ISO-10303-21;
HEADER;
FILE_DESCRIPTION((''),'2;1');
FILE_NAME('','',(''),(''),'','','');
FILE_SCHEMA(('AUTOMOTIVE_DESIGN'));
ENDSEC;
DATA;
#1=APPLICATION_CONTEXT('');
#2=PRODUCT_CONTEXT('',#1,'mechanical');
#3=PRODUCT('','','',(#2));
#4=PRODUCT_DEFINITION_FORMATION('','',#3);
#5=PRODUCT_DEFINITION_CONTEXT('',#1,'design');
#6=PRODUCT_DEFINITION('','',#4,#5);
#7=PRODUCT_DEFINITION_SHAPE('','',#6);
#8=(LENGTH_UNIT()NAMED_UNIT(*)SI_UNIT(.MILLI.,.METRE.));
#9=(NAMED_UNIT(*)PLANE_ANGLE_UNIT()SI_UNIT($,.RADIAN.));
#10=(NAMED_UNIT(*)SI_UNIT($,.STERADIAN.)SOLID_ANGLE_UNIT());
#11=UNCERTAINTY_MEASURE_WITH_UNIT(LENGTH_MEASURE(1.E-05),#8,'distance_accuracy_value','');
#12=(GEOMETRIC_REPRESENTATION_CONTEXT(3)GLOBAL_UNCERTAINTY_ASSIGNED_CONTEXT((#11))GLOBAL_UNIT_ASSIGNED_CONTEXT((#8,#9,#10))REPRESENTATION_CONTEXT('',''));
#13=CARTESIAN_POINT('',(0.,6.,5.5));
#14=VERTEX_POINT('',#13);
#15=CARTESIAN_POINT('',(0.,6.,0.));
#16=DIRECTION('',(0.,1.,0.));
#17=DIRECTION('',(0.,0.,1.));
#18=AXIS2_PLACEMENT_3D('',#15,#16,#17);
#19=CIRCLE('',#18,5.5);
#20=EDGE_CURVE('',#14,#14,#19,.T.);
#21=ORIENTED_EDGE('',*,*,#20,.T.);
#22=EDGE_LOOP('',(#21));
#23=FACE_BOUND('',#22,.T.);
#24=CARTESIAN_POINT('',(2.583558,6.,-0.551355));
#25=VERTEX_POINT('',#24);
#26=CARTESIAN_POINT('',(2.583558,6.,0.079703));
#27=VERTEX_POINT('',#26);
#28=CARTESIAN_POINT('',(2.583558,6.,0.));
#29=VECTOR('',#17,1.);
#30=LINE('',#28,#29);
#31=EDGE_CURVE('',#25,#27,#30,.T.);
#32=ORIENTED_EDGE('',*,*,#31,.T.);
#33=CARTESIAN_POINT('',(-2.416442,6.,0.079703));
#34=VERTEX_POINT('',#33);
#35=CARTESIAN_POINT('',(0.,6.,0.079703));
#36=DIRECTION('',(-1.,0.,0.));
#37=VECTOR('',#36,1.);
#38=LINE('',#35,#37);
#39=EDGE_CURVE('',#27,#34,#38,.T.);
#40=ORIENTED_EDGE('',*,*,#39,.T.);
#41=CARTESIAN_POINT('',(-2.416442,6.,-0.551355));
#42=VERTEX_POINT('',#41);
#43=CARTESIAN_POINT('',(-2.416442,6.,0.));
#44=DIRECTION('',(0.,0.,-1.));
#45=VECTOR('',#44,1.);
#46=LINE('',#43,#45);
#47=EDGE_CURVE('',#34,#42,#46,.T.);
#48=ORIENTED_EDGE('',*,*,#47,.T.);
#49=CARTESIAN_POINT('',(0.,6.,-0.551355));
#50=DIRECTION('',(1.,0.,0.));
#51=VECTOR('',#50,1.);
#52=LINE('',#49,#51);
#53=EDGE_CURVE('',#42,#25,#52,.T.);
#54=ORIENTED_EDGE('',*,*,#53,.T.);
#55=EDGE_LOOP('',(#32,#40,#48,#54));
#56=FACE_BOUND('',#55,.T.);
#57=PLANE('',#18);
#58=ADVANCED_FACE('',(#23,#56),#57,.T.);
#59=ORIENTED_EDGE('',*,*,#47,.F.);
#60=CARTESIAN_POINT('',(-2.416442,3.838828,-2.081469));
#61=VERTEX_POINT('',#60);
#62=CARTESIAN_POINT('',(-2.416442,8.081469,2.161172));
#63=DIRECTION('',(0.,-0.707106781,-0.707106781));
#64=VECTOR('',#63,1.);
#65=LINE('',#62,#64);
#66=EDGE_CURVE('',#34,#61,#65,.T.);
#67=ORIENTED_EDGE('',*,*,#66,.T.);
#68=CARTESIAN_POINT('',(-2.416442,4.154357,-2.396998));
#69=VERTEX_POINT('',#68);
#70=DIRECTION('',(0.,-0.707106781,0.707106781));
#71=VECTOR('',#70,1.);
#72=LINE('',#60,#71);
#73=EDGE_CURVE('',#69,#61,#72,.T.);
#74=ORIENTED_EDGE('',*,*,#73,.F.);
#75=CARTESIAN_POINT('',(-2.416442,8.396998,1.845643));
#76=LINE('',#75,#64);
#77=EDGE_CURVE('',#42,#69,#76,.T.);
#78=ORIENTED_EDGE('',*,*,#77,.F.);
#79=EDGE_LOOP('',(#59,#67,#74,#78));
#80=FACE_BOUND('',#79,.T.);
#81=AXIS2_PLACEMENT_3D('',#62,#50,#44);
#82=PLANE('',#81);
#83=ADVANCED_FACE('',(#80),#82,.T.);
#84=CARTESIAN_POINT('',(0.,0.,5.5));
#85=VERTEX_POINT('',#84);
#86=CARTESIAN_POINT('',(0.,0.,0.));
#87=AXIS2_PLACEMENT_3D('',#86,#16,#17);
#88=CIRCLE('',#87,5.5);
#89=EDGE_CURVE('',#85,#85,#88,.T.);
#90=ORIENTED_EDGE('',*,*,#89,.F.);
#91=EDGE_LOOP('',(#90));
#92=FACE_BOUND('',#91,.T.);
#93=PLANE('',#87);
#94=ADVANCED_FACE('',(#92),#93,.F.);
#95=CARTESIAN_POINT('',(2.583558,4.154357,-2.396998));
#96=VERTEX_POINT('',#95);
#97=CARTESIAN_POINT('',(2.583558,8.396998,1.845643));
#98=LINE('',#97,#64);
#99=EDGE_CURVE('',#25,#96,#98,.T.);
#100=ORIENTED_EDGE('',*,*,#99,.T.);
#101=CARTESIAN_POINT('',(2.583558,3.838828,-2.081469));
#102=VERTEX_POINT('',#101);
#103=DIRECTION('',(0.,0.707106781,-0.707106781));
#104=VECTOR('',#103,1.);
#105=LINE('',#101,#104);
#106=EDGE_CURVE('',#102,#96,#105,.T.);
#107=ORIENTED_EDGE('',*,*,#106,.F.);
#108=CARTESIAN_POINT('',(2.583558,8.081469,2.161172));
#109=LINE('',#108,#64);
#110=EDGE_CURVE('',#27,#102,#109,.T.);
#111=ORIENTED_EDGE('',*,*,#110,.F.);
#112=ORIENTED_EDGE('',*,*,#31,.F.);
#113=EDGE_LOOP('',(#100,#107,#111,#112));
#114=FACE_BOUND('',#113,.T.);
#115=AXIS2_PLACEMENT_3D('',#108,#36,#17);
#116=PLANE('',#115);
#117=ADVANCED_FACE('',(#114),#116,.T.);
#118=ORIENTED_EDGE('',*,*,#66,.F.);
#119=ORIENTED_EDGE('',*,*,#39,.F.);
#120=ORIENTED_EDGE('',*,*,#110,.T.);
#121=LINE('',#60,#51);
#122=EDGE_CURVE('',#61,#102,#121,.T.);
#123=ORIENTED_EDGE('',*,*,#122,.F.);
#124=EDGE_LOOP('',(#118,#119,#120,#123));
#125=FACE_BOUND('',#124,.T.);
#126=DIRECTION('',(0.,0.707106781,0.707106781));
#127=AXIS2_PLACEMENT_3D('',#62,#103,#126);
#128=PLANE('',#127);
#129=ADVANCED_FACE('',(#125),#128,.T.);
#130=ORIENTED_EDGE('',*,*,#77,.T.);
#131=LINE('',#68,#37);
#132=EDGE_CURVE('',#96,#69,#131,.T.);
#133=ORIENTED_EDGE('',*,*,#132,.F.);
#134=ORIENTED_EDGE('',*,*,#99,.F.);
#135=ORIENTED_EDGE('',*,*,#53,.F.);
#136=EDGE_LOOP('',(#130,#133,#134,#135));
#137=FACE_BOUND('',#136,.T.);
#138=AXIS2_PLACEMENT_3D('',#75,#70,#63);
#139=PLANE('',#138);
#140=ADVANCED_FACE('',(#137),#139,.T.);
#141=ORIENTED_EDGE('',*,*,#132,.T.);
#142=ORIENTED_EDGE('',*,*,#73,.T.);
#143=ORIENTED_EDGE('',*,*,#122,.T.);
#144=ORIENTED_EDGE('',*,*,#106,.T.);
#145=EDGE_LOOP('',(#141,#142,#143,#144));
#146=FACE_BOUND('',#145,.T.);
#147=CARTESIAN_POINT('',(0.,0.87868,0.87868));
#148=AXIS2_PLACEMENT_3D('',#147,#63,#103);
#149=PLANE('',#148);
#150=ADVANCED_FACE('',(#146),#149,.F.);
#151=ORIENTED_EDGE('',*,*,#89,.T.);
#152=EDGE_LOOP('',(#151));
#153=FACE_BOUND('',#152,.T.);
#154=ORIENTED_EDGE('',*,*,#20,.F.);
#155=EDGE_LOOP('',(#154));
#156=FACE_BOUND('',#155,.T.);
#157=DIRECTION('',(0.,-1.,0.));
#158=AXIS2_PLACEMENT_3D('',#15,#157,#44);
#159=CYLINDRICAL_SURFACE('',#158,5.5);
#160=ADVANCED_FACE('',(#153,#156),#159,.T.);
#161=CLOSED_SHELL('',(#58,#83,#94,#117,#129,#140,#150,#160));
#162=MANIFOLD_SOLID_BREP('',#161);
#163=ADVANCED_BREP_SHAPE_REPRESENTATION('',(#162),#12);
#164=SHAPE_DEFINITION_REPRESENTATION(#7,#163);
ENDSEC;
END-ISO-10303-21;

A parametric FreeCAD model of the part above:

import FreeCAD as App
import Part
import Sketcher
from FreeCAD import Vector


def add_polygon(sketch, points):
    """Adds a closed chain of lines whose ends are joined by coincident constraints."""
    first, n = sketch.GeometryCount, len(points)
    for a, b in zip(points, points[1:] + points[:1]):
        sketch.addGeometry(Part.LineSegment(App.Vector(*a, 0), App.Vector(*b, 0)), False)
    for i in range(n):
        sketch.addConstraint(Sketcher.Constraint("Coincident", first + i, 2, first + (i + 1) % n, 1))

doc = App.newDocument("Part")
params = doc.addObject("Spreadsheet::Sheet", "Params")
for row, (alias, value) in enumerate([
    ("sketch1_diameter", "11 mm"),
    ("pad1_length", "6 mm"),
    ("sketch2_width", "5 mm"),
    ("pocket1_length", "3 mm"),
    ("pocket1_length2", "3 mm"),
], start=1):
    params.set(f"A{row}", alias)
    params.set(f"B{row}", "=" + value)
    params.setAlias(f"B{row}", alias)

body = doc.addObject("PartDesign::Body", "Body")

# Sketch on XZ plane
sketch1 = body.newObject("Sketcher::SketchObject", "Sketch")
sketch1.AttachmentSupport = (doc.getObject("XZ_Plane"), [""])
sketch1.MapMode = "FlatFace"
sketch1.addGeometry(Part.Circle(Vector(0, 0, 0), Vector(0, 0, 1), 6), False)
sketch1.addConstraint(Sketcher.Constraint("Coincident", 0, 3, -1, 1))
sketch1.addConstraint(Sketcher.Constraint("Diameter", 0, 11.0))
sketch1.setExpression("Constraints[1]", "Params.sketch1_diameter")
pad1 = body.newObject("PartDesign::Pad", "Pad")
pad1.Profile = sketch1
pad1.setExpression("Length", "Params.pad1_length")
pad1.Reversed = True

# Sketch on an angled plane
sketch2 = body.newObject("Sketcher::SketchObject", "Sketch001")
sketch2.Placement = App.Placement(Vector(0, 3, 3), App.Rotation(Vector(1, 0, 0), Vector(0, 0.707106781, -0.707106781), Vector(0, 0.707106781, 0.707106781), "ZXY"))
add_polygon(sketch2, [(-2.42, 4.63), (-2.42, 4.19), (2.58, 4.19), (2.58, 4.63)])  # lines 0-3
sketch2.addConstraint(Sketcher.Constraint("Vertical", 0))
sketch2.addConstraint(Sketcher.Constraint("Horizontal", 1))
sketch2.addConstraint(Sketcher.Constraint("Vertical", 2))
sketch2.addConstraint(Sketcher.Constraint("Horizontal", 3))
sketch2.addConstraint(Sketcher.Constraint("DistanceX", 1, 1, 1, 2, 5.0))
sketch2.addConstraint(Sketcher.Constraint("DistanceY", 0, 2, 0, 1, 0.446225))
sketch2.addConstraint(Sketcher.Constraint("DistanceX", 0, 2, -1, 1, 2.416442))
sketch2.addConstraint(Sketcher.Constraint("DistanceY", -1, 1, 0, 2, 4.186282))
sketch2.setExpression("Constraints[8]", "Params.sketch2_width")
pocket1 = body.newObject("PartDesign::Pocket", "Pocket")
pocket1.Profile = sketch2
pocket1.Type = "TwoLengths"
pocket1.setExpression("Length", "Params.pocket1_length")
pocket1.setExpression("Length2", "Params.pocket1_length2")
pocket1.Reversed = True

doc.recompute()
